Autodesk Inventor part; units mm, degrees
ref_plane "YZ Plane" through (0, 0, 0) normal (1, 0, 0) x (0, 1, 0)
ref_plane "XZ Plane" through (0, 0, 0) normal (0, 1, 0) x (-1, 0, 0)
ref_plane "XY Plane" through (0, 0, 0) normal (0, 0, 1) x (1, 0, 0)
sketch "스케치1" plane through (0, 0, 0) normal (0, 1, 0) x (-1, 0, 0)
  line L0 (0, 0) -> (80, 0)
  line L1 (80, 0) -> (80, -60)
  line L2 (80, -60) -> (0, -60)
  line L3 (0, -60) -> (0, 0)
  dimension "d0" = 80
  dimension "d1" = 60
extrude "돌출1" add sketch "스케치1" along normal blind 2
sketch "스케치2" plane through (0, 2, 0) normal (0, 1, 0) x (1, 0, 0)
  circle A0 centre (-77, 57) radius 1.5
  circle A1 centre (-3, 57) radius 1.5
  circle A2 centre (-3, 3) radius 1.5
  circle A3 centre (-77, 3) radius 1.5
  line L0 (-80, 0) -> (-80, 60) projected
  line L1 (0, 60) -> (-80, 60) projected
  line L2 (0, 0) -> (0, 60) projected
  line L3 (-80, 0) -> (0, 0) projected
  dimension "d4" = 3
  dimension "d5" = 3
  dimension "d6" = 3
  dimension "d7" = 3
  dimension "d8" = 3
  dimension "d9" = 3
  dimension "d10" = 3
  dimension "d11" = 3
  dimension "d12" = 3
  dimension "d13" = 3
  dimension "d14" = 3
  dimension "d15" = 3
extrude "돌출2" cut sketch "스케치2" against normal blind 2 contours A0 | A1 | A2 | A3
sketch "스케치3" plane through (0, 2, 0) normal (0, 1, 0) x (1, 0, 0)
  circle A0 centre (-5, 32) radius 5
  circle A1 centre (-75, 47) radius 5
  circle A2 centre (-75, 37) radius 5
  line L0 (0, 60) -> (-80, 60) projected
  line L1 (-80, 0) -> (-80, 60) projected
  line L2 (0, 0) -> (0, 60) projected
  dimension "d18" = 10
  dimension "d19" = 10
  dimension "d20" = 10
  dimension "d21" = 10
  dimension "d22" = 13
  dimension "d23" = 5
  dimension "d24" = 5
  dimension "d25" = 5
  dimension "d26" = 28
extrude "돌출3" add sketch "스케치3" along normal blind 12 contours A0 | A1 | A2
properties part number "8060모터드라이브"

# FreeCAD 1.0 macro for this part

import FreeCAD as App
import Part
import Sketcher
Q = App.Units.Quantity

doc = App.newDocument("Part")
body = doc.addObject("PartDesign::Body", "Body")

# Sketch on XZ plane
sketch1 = body.newObject("Sketcher::SketchObject", "Sketch")
sketch1.AttachmentSupport = (doc.getObject("XZ_Plane"), [""])
sketch1.MapMode = "FlatFace"
sketch1.addGeometry([
    Part.LineSegment(App.Vector(-80, 0, 0), App.Vector(0, 0, 0)),
    Part.LineSegment(App.Vector(0, 0, 0), App.Vector(0, -60, 0)),
    Part.LineSegment(App.Vector(0, -60, 0), App.Vector(-80, -60, 0)),
    Part.LineSegment(App.Vector(-80, -60, 0), App.Vector(-80, 0, 0)),
], False)
sketch1.addConstraint([
    Sketcher.Constraint("Coincident", 0, 2, 1, 1),
    Sketcher.Constraint("Coincident", 1, 2, 2, 1),
    Sketcher.Constraint("Coincident", 2, 2, 3, 1),
    Sketcher.Constraint("Coincident", 3, 2, 0, 1),
    Sketcher.Constraint("Horizontal", 0),
    Sketcher.Constraint("Vertical", 1),
    Sketcher.Constraint("Horizontal", 2),
    Sketcher.Constraint("Vertical", 3),
    Sketcher.Constraint("Coincident", 0, 2, -1, 1),
    Sketcher.Constraint("DistanceX", 0, 1, 0, 2, Q("80 mm")),
    Sketcher.Constraint("DistanceY", 1, 2, 1, 1, Q("60 mm")),
])
pad1 = body.newObject("PartDesign::Pad", "Pad")
pad1.Profile = sketch1
pad1.Length = 2
pad1.Reversed = True

# Sketch on XZ plane
sketch2 = body.newObject("Sketcher::SketchObject", "Sketch001")
sketch2.AttachmentSupport = (doc.getObject("XZ_Plane"), [""])
sketch2.MapMode = "FlatFace"
sketch2.AttachmentOffset = App.Placement(App.Vector(0, 0, -2), App.Rotation())
sketch2.addGeometry([
    Part.Circle(App.Vector(-77, -57, 0), App.Vector(0, 0, 1), 1.5),
    Part.Circle(App.Vector(-3, -57, 0), App.Vector(0, 0, 1), 1.5),
    Part.Circle(App.Vector(-3, -3, 0), App.Vector(0, 0, 1), 1.5),
    Part.Circle(App.Vector(-77, -3, 0), App.Vector(0, 0, 1), 1.5),
], False)
sketch2.addConstraint([
    Sketcher.Constraint("Equal", 0, 1),
    Sketcher.Constraint("Equal", 1, 2),
    Sketcher.Constraint("Equal", 2, 3),
    Sketcher.Constraint("Horizontal", 0, 3, 1, 3),
    Sketcher.Constraint("Horizontal", 2, 3, 3, 3),
    Sketcher.Constraint("Vertical", 1, 3, 2, 3),
    Sketcher.Constraint("Vertical", 0, 3, 3, 3),
    Sketcher.Constraint("Diameter", 0, Q("3 mm")),
    Sketcher.Constraint("DistanceX", 1, 3, -1, 1, Q("3 mm")),
    Sketcher.Constraint("DistanceY", 2, 3, -1, 1, Q("3 mm")),
    Sketcher.Constraint("DistanceX", 0, 3, -1, 1, Q("77 mm")),
    Sketcher.Constraint("DistanceY", 0, 3, -1, 1, Q("57 mm")),
])
pocket1 = body.newObject("PartDesign::Pocket", "Pocket")
pocket1.Profile = sketch2
pocket1.Length = 2
pocket1.Reversed = True

# Sketch on XZ plane
sketch3 = body.newObject("Sketcher::SketchObject", "Sketch002")
sketch3.AttachmentSupport = (doc.getObject("XZ_Plane"), [""])
sketch3.MapMode = "FlatFace"
sketch3.AttachmentOffset = App.Placement(App.Vector(0, 0, -2), App.Rotation())
sketch3.addGeometry([
    Part.Circle(App.Vector(-5, -32, 0), App.Vector(0, 0, 1), 5),
    Part.Circle(App.Vector(-75, -47, 0), App.Vector(0, 0, 1), 5),
    Part.Circle(App.Vector(-75, -37, 0), App.Vector(0, 0, 1), 5),
], False)
sketch3.addConstraint([
    Sketcher.Constraint("Equal", 0, 1),
    Sketcher.Constraint("Equal", 1, 2),
    Sketcher.Constraint("Vertical", 1, 3, 2, 3),
    Sketcher.Constraint("Diameter", 0, Q("10 mm")),
    Sketcher.Constraint("DistanceX", 0, 3, -1, 1, Q("5 mm")),
    Sketcher.Constraint("DistanceY", 1, 3, 2, 3, Q("10 mm")),
    Sketcher.Constraint("DistanceY", 2, 3, 0, 3, Q("5 mm")),
    Sketcher.Constraint("DistanceY", 0, 3, -1, 1, Q("32 mm")),
    Sketcher.Constraint("DistanceX", 1, 3, -1, 1, Q("75 mm")),
])
pad2 = body.newObject("PartDesign::Pad", "Pad001")
pad2.Profile = sketch3
pad2.Length = 12
pad2.Reversed = True

doc.recompute()
